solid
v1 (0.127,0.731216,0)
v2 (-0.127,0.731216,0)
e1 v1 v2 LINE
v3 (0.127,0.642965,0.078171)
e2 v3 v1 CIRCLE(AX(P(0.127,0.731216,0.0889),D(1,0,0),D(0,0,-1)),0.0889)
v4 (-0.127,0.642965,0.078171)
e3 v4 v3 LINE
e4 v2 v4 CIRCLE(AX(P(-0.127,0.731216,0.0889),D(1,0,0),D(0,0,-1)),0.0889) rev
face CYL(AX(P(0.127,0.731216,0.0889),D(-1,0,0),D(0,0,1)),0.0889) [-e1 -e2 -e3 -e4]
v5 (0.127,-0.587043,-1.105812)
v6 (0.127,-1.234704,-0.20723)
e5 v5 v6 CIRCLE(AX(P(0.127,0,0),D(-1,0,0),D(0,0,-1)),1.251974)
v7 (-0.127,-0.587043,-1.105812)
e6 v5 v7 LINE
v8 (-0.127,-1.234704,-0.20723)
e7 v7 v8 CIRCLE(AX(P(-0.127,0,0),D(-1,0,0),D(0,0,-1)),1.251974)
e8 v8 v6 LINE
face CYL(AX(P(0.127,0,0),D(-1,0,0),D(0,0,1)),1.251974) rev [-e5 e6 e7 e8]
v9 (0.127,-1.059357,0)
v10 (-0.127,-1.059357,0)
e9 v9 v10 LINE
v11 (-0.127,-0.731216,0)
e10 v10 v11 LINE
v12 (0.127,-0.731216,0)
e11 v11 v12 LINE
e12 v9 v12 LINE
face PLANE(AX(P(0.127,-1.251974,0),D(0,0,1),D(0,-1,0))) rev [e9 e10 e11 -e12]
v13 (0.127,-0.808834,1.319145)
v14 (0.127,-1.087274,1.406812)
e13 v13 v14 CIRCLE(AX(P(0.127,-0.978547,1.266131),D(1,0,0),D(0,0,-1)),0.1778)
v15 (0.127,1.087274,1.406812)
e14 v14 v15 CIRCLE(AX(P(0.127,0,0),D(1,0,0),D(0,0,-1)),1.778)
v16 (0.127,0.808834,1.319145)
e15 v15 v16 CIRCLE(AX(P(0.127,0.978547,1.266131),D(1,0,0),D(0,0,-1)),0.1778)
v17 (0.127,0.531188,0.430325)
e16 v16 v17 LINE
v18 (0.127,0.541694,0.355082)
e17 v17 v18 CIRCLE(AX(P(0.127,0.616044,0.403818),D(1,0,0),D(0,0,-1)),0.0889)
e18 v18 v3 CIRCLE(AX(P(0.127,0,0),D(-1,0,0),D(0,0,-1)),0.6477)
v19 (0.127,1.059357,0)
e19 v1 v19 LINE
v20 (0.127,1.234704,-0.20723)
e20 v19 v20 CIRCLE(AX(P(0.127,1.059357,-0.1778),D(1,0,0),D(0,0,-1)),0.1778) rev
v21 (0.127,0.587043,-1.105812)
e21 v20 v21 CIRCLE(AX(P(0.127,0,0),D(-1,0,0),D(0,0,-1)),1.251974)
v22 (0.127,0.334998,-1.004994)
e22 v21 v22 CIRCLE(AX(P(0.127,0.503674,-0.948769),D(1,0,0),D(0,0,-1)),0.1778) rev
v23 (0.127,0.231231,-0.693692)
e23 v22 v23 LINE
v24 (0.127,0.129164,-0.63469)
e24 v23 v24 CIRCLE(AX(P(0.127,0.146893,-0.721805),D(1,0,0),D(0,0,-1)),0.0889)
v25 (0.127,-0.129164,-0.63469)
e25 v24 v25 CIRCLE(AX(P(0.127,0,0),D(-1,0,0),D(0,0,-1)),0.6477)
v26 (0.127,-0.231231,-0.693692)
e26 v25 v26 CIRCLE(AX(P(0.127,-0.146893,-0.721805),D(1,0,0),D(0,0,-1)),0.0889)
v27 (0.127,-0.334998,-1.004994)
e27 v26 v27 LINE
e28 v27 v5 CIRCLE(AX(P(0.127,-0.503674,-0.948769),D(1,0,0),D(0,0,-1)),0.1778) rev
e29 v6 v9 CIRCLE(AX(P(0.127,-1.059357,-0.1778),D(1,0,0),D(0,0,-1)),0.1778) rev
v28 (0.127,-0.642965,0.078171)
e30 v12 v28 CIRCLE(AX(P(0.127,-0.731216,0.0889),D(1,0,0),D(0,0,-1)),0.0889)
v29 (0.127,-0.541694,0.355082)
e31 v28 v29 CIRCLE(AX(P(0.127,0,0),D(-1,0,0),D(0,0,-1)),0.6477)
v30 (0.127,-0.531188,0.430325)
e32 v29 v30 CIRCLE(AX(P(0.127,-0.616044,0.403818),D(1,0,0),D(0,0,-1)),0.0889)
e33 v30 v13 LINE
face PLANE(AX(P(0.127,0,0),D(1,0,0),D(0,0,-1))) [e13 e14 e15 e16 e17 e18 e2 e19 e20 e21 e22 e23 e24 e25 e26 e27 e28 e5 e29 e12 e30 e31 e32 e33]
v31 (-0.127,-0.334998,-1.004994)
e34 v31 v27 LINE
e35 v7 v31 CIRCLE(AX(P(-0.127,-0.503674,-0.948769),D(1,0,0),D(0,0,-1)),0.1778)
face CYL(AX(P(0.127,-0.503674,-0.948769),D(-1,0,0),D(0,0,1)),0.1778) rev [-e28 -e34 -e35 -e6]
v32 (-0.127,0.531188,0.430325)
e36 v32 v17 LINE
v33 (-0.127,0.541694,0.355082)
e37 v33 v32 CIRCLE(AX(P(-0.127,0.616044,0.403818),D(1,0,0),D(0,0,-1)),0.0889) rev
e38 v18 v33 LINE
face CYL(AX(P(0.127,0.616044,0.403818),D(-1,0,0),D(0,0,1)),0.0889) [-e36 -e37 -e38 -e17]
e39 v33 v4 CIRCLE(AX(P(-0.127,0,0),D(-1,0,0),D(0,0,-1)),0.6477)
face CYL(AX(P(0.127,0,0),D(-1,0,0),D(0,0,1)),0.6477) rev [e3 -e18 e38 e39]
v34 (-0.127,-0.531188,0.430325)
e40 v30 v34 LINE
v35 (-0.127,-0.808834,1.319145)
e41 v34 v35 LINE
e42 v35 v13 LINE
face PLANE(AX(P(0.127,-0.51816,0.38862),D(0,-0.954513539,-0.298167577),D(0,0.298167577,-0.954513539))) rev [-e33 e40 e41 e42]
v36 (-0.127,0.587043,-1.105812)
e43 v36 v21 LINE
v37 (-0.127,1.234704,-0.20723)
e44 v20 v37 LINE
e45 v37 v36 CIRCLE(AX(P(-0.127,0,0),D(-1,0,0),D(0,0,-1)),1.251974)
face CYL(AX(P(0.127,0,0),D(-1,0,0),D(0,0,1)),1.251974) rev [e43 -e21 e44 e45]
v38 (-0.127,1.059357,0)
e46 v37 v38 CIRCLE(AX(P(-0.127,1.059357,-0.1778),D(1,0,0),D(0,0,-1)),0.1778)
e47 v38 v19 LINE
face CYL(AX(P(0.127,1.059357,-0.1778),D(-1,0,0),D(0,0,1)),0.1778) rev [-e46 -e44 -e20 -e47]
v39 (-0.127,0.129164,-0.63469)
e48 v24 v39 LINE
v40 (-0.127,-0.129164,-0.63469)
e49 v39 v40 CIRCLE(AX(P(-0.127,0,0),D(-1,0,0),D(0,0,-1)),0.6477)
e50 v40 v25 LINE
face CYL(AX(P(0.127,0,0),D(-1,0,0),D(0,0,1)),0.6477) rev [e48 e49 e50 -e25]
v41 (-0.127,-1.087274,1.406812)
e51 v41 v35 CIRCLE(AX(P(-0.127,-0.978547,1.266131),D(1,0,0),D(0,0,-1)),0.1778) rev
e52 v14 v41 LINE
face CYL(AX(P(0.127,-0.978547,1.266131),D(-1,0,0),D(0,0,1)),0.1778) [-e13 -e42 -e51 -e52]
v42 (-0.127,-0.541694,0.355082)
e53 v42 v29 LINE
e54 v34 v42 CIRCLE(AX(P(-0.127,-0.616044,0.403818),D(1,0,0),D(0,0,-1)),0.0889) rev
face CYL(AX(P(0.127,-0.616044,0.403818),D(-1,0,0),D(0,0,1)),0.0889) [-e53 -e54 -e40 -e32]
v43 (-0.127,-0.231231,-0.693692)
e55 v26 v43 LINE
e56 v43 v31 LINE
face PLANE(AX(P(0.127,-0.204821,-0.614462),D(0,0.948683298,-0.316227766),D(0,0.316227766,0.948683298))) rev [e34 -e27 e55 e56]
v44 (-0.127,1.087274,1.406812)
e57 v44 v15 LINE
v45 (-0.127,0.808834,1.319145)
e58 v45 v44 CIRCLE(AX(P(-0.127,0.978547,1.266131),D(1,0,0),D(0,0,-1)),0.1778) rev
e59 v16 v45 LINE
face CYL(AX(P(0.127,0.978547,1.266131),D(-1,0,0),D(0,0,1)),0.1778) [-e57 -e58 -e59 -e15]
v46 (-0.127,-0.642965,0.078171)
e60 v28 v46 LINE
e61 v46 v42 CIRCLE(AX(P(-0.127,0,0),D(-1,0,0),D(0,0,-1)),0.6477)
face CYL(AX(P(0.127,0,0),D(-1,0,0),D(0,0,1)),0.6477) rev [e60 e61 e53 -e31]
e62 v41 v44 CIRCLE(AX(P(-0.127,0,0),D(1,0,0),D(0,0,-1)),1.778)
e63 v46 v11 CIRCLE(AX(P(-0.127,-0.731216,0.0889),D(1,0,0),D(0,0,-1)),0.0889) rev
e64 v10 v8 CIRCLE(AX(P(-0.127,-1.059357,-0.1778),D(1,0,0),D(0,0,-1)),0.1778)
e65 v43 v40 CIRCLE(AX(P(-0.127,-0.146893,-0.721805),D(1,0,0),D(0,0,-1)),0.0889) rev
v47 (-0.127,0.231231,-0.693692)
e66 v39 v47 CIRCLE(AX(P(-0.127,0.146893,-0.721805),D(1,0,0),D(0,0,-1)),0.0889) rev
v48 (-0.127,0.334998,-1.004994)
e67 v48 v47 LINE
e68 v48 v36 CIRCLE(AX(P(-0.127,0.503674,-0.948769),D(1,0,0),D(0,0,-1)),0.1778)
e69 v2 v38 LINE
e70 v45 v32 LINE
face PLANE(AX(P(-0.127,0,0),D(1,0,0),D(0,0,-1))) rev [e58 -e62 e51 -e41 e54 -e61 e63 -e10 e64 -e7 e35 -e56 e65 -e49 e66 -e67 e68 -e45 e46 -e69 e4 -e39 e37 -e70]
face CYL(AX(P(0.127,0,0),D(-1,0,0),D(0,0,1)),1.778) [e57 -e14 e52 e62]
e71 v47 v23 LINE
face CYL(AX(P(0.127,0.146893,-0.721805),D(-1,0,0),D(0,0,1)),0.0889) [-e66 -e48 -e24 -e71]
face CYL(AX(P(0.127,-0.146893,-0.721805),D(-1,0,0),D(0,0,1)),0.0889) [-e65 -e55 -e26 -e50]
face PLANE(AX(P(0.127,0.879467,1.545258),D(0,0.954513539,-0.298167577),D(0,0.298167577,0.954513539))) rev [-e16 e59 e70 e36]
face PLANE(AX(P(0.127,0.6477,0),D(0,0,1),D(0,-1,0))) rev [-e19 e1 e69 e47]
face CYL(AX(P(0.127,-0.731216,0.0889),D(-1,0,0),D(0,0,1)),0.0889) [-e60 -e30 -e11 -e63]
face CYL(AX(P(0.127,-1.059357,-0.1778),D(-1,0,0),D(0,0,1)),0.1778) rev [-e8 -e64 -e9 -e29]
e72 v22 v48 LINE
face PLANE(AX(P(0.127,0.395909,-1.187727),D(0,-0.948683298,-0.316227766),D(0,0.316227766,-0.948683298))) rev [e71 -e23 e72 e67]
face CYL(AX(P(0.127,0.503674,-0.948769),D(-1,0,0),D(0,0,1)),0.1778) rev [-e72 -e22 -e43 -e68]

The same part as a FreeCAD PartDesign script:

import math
import FreeCAD as App
import Part
import Sketcher
from FreeCAD import Vector
Q = App.Units.Quantity


def edges_at(feature, points):
    """Names of the edges that pass closest to the given points."""
    edges = feature.Shape.Edges
    near = lambda p: min(range(len(edges)), key=lambda i: edges[i].distToShape(Part.Vertex(*p))[0])
    return sorted({f"Edge{near(p) + 1}" for p in points})

doc = App.newDocument("Part")
params = doc.addObject("Spreadsheet::Sheet", "Params")
for row, (alias, value) in enumerate([
    ("sketch1_radius", "0.07 in"),
    ("pad1_length", "0.005 in"),
    ("pad1_length2", "0.005 in"),
    ("fillet_radius", "0.007 in"),
    ("fillet2_radius", "0.0035 in"),
], start=1):
    params.set(f"A{row}", alias)
    params.set(f"B{row}", "=" + value)
    params.setAlias(f"B{row}", alias)

body = doc.addObject("PartDesign::Body", "Body")

# Sketch on YZ plane
sketch1 = body.newObject("Sketcher::SketchObject", "Sketch")
sketch1.AttachmentSupport = (doc.getObject("YZ_Plane"), [""])
sketch1.MapMode = "FlatFace"
sketch1.addGeometry([
    Part.LineSegment(Vector(-0.204821, -0.614462, 0), Vector(-0.395909, -1.187727, 0)),  # 0
    Part.ArcOfCircle(Part.Circle(Vector(0, 0, 0), Vector(0, 0, 1), 1.251974), math.radians(180), math.radians(251.565051)),  # 1
    Part.LineSegment(Vector(-1.251974, 0, 0), Vector(-0.6477, 0, 0)),  # 2
    Part.ArcOfCircle(Part.Circle(Vector(0, 0, 0), Vector(0, 0, 1), 0.6477), math.radians(143.130102), math.radians(180)),  # 3
    Part.LineSegment(Vector(-0.51816, 0.38862, 0), Vector(-0.879467, 1.545258, 0)),  # 4
    Part.ArcOfCircle(Part.Circle(Vector(0, 0, 0), Vector(0, 0, 1), 1.778), math.radians(119.645889), math.radians(420.354111)),  # 5
    Part.LineSegment(Vector(0.879467, 1.545258, 0), Vector(0.51816, 0.38862, 0)),  # 6
    Part.ArcOfCircle(Part.Circle(Vector(0, 0, 0), Vector(0, 0, 1), 0.6477), math.radians(0), math.radians(36.869898)),  # 7
    Part.LineSegment(Vector(0.6477, 0, 0), Vector(1.251974, 0, 0)),  # 8
    Part.ArcOfCircle(Part.Circle(Vector(0, 0, 0), Vector(0, 0, 1), 1.251974), math.radians(-71.565051), math.radians(0)),  # 9
    Part.LineSegment(Vector(0.395909, -1.187727, 0), Vector(0.204821, -0.614462, 0)),  # 10
    Part.ArcOfCircle(Part.Circle(Vector(0, 0, 0), Vector(0, 0, 1), 0.6477), math.radians(-108.434949), math.radians(-71.565051)),  # 11
], False)
sketch1.addConstraint([
    Sketcher.Constraint("Coincident", 0, 2, 1, 2),
    Sketcher.Constraint("Coincident", 1, 1, 2, 1),
    Sketcher.Constraint("Coincident", 2, 2, 3, 2),
    Sketcher.Constraint("Coincident", 3, 1, 4, 1),
    Sketcher.Constraint("Coincident", 4, 2, 5, 1),
    Sketcher.Constraint("Coincident", 5, 2, 6, 1),
    Sketcher.Constraint("Coincident", 6, 2, 7, 2),
    Sketcher.Constraint("Coincident", 7, 1, 8, 1),
    Sketcher.Constraint("Coincident", 8, 2, 9, 2),
    Sketcher.Constraint("Coincident", 9, 1, 10, 1),
    Sketcher.Constraint("Coincident", 10, 2, 11, 2),
    Sketcher.Constraint("Coincident", 11, 1, 0, 1),
    Sketcher.Constraint("Horizontal", 2),
    Sketcher.Constraint("Horizontal", 8),
    Sketcher.Constraint("Coincident", 1, 3, -1, 1),
    Sketcher.Constraint("Coincident", 3, 3, -1, 1),
    Sketcher.Constraint("Coincident", 5, 3, -1, 1),
    Sketcher.Constraint("Coincident", 7, 3, -1, 1),
    Sketcher.Constraint("Coincident", 9, 3, -1, 1),
    Sketcher.Constraint("Coincident", 11, 3, -1, 1),
    Sketcher.Constraint("Equal", 3, 7),
    Sketcher.Constraint("Equal", 1, 9),
    Sketcher.Constraint("Equal", 7, 11),
    Sketcher.Constraint("PointOnObject", 1, 1, -1),
    Sketcher.Constraint("PointOnObject", 7, 1, -1),
    Sketcher.Constraint("Horizontal", 4, 2, 5, 2),
    Sketcher.Constraint("Horizontal", 3, 1, 6, 2),
    Sketcher.Constraint("Horizontal", 0, 2, 9, 1),
    Sketcher.Constraint("Horizontal", 10, 2, 11, 1),
    Sketcher.Constraint("Radius", 5, Q("0.07 in")),
    Sketcher.Constraint("Radius", 3, Q("0.0255 in")),
    Sketcher.Constraint("DistanceX", 3, 1, -1, 1, Q("0.0204 in")),
    Sketcher.Constraint("Radius", 1, 1.251974),
    Sketcher.Constraint("DistanceX", 0, 2, -1, 1, 0.395909),
    Sketcher.Constraint("DistanceY", -1, 1, 4, 2, 1.545258),
    Sketcher.Constraint("DistanceX", -1, 1, 10, 2, 0.204821),
])
sketch1.setExpression("Constraints[29]", "Params.sketch1_radius")
pad1 = body.newObject("PartDesign::Pad", "Pad")
pad1.Profile = sketch1
pad1.Type = "TwoLengths"
pad1.setExpression("Length", "Params.pad1_length")
pad1.setExpression("Length2", "Params.pad1_length2")
doc.recompute()

fillet = body.newObject("PartDesign::Fillet", "Fillet")
fillet.Base = (pad1, edges_at(pad1, [
    (0, 0.396, -1.188),
    (0, 1.252, 0),
    (0, 0.879, 1.545),
    (0, -0.879, 1.545),
    (0, -1.252, 0),
    (0, -0.396, -1.188),
]))
fillet.setExpression("Radius", "Params.fillet_radius")
doc.recompute()

fillet2 = body.newObject("PartDesign::Fillet", "Fillet001")
fillet2.Base = (fillet, edges_at(fillet, [
    (0, 0.205, -0.614),
    (0, 0.648, 0),
    (0, 0.518, 0.389),
    (0, -0.518, 0.389),
    (0, -0.648, 0),
    (0, -0.205, -0.614),
]))
fillet2.setExpression("Radius", "Params.fillet2_radius")

doc.recompute()
